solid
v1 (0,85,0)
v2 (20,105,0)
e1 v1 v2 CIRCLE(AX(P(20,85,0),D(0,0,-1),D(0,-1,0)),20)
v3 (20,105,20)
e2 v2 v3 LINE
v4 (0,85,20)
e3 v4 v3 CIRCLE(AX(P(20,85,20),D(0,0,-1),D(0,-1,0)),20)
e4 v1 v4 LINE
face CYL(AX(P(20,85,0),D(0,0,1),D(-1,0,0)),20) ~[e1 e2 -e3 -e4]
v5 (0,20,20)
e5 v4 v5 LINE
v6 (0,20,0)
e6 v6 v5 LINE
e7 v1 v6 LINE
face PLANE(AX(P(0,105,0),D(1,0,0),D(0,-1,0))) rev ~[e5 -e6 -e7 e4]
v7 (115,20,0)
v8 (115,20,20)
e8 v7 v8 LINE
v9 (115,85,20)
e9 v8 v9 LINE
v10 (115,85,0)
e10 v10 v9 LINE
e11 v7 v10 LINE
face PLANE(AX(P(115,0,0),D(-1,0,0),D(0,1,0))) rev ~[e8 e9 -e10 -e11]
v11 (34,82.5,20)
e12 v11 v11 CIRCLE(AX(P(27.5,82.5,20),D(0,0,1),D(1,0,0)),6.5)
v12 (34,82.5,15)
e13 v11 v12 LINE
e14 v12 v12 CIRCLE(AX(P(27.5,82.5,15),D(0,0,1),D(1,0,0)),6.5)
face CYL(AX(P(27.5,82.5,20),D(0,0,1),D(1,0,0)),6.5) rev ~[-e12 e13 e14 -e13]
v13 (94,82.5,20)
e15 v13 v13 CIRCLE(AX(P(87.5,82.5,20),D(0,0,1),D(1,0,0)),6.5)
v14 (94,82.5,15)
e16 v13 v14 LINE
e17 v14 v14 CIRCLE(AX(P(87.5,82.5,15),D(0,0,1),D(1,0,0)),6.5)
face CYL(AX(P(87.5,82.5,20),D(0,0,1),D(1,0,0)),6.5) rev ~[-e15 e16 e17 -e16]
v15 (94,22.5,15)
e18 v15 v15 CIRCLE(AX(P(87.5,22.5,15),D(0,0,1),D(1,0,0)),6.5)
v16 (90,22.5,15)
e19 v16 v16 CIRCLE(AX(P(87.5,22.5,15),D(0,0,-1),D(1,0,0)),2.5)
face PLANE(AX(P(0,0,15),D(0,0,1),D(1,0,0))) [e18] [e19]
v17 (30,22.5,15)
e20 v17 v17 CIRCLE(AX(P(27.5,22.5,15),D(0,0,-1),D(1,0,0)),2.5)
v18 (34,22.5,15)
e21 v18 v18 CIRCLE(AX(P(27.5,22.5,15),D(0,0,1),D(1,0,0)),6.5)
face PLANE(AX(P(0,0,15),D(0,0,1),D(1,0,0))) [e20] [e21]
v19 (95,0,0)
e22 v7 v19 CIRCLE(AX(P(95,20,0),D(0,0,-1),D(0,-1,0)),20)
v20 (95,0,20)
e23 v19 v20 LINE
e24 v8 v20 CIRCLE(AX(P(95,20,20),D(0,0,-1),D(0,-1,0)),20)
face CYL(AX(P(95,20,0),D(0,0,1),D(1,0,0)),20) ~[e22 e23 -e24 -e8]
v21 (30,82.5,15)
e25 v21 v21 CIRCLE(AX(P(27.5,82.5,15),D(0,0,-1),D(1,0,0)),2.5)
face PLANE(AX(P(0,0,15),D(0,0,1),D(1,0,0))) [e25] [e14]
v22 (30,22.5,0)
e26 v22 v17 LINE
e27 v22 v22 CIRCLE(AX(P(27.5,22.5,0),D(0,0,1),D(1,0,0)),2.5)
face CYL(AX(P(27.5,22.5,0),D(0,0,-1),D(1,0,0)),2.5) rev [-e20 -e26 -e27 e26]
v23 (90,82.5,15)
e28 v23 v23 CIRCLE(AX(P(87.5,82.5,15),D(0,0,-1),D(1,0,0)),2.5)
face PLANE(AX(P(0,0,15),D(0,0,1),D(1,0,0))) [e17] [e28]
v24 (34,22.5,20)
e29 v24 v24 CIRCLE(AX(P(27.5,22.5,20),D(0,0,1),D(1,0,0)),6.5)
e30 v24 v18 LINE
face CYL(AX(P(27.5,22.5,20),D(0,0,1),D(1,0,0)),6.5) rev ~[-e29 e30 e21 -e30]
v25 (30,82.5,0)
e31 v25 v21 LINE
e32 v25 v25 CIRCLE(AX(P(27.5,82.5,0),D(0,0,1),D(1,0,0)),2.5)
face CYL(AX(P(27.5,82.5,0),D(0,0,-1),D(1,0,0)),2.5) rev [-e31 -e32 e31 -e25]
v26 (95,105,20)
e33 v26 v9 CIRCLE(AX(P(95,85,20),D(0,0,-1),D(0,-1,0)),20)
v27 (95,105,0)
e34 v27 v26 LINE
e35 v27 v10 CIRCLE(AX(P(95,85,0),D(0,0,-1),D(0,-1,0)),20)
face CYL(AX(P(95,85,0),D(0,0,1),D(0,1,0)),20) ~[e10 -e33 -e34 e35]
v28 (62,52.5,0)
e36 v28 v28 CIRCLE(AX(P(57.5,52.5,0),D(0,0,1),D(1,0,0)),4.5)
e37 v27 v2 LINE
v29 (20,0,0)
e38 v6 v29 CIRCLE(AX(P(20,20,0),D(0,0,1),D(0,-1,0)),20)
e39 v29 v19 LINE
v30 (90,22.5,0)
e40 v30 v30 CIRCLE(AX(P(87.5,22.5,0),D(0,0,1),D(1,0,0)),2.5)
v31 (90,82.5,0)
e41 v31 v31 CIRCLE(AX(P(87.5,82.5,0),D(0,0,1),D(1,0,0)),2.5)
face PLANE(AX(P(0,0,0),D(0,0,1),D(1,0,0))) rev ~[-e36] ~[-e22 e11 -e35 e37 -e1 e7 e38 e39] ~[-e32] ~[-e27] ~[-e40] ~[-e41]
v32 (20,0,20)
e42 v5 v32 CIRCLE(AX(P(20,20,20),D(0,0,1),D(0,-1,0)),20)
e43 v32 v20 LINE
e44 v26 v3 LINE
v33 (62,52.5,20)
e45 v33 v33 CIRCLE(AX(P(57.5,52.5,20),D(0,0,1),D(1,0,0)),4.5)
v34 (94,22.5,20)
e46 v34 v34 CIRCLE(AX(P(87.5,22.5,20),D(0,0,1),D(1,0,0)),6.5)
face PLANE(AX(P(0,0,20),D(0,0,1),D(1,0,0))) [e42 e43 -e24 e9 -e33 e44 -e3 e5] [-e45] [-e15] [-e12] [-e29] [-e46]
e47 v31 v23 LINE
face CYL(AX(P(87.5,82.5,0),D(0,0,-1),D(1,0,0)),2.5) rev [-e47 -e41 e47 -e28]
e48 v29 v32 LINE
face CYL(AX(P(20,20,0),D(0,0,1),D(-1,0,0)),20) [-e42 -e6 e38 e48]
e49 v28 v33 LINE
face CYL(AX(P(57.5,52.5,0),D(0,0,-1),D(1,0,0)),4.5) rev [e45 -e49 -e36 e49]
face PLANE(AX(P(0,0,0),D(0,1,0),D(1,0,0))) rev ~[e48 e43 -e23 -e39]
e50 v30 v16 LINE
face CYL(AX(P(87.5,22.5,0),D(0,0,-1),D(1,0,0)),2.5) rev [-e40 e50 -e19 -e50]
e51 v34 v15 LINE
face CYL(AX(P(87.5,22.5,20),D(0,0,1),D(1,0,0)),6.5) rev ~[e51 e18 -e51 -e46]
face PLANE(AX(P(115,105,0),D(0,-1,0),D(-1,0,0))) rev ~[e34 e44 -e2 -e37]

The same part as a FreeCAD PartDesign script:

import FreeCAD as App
import Part
import Sketcher
Q = App.Units.Quantity


def edges_at(feature, points):
    """Names of the edges that pass closest to the given points."""
    edges = feature.Shape.Edges
    near = lambda p: min(range(len(edges)), key=lambda i: edges[i].distToShape(Part.Vertex(*p))[0])
    return sorted({f"Edge{near(p) + 1}" for p in points})


def add_polygon(sketch, points):
    """Adds a closed chain of lines whose ends are joined by coincident constraints."""
    first, n = sketch.GeometryCount, len(points)
    for a, b in zip(points, points[1:] + points[:1]):
        sketch.addGeometry(Part.LineSegment(App.Vector(*a, 0), App.Vector(*b, 0)), False)
    for i in range(n):
        sketch.addConstraint(Sketcher.Constraint("Coincident", first + i, 2, first + (i + 1) % n, 1))

doc = App.newDocument("Part")
body = doc.addObject("PartDesign::Body", "Body")

# Sketch on XY plane
sketch1 = body.newObject("Sketcher::SketchObject", "Sketch")
sketch1.AttachmentSupport = (doc.getObject("XY_Plane"), [""])
sketch1.MapMode = "FlatFace"
add_polygon(sketch1, [(0, 105), (0, 0), (115, 0), (115, 105)])  # lines 0-3
sketch1.addGeometry(Part.Circle(App.Vector(27.5, 22.5, 0), App.Vector(0, 0, 1), 2.5), False)  # 4
sketch1.addGeometry(Part.Circle(App.Vector(87.5, 22.5, 0), App.Vector(0, 0, 1), 2.5), False)  # 5
sketch1.addGeometry(Part.Circle(App.Vector(27.5, 82.5, 0), App.Vector(0, 0, 1), 2.5), False)  # 6
sketch1.addGeometry(Part.Circle(App.Vector(57.5, 52.5, 0), App.Vector(0, 0, 1), 4.5), False)  # 7
sketch1.addGeometry(Part.Circle(App.Vector(87.5, 82.5, 0), App.Vector(0, 0, 1), 2.5), False)  # 8
sketch1.addConstraint([
    Sketcher.Constraint("Vertical", 0),
    Sketcher.Constraint("Horizontal", 1),
    Sketcher.Constraint("Vertical", 2),
    Sketcher.Constraint("Horizontal", 3),
    Sketcher.Constraint("Coincident", 0, 2, -1, 1),
    Sketcher.Constraint("Equal", 4, 5),
    Sketcher.Constraint("Equal", 5, 6),
    Sketcher.Constraint("Equal", 6, 8),
    Sketcher.Constraint("Horizontal", 4, 3, 5, 3),
    Sketcher.Constraint("Horizontal", 6, 3, 8, 3),
    Sketcher.Constraint("Vertical", 4, 3, 6, 3),
    Sketcher.Constraint("Vertical", 5, 3, 8, 3),
    Sketcher.Constraint("Diameter", 4, Q("5 mm")),
    Sketcher.Constraint("Diameter", 7, Q("9 mm")),
    Sketcher.Constraint("DistanceX", 1, 1, 1, 2, Q("115 mm")),
    Sketcher.Constraint("DistanceY", 0, 2, 0, 1, Q("105 mm")),
    Sketcher.Constraint("DistanceX", 4, 3, 5, 3, Q("60 mm")),
    Sketcher.Constraint("DistanceY", 4, 3, 6, 3, Q("60 mm")),
    Sketcher.Constraint("DistanceX", 4, 3, 7, 3, Q("30 mm")),
    Sketcher.Constraint("DistanceY", 4, 3, 7, 3, Q("30 mm")),
    Sketcher.Constraint("DistanceX", -1, 1, 4, 3, Q("27.5 mm")),
    Sketcher.Constraint("DistanceY", -1, 1, 4, 3, Q("22.5 mm")),
])
pad1 = body.newObject("PartDesign::Pad", "Pad")
pad1.Profile = sketch1
pad1.Length = 20
doc.recompute()

fillet = body.newObject("PartDesign::Fillet", "Fillet")
fillet.Base = (pad1, edges_at(pad1, [
    (0, 105, 10),
    (115, 105, 10),
    (115, 0, 10),
    (0, 0, 10),
]))
fillet.Radius = 20

# Sketch on XY plane
sketch2 = body.newObject("Sketcher::SketchObject", "Sketch001")
sketch2.AttachmentSupport = (doc.getObject("XY_Plane"), [""])
sketch2.MapMode = "FlatFace"
sketch2.AttachmentOffset = App.Placement(App.Vector(0, 0, 20), App.Rotation())
sketch2.addGeometry([
    Part.Circle(App.Vector(27.5, 82.5, 0), App.Vector(0, 0, 1), 6.5),
    Part.Circle(App.Vector(87.5, 82.5, 0), App.Vector(0, 0, 1), 6.5),
    Part.Circle(App.Vector(87.5, 22.5, 0), App.Vector(0, 0, 1), 6.5),
    Part.Circle(App.Vector(27.5, 22.5, 0), App.Vector(0, 0, 1), 6.5),
], False)
sketch2.addConstraint([
    Sketcher.Constraint("Equal", 0, 1),
    Sketcher.Constraint("Equal", 1, 2),
    Sketcher.Constraint("Equal", 2, 3),
    Sketcher.Constraint("Horizontal", 0, 3, 1, 3),
    Sketcher.Constraint("Horizontal", 2, 3, 3, 3),
    Sketcher.Constraint("Vertical", 1, 3, 2, 3),
    Sketcher.Constraint("Vertical", 0, 3, 3, 3),
    Sketcher.Constraint("Diameter", 0, Q("13 mm")),
    Sketcher.Constraint("DistanceX", 0, 3, 1, 3, Q("60 mm")),
    Sketcher.Constraint("DistanceY", 2, 3, 1, 3, Q("60 mm")),
    Sketcher.Constraint("DistanceX", -1, 1, 0, 3, Q("27.5 mm")),
    Sketcher.Constraint("DistanceY", -1, 1, 0, 3, Q("82.5 mm")),
])
pocket1 = body.newObject("PartDesign::Pocket", "Pocket")
pocket1.Profile = sketch2
pocket1.Length = 5

doc.recompute()
